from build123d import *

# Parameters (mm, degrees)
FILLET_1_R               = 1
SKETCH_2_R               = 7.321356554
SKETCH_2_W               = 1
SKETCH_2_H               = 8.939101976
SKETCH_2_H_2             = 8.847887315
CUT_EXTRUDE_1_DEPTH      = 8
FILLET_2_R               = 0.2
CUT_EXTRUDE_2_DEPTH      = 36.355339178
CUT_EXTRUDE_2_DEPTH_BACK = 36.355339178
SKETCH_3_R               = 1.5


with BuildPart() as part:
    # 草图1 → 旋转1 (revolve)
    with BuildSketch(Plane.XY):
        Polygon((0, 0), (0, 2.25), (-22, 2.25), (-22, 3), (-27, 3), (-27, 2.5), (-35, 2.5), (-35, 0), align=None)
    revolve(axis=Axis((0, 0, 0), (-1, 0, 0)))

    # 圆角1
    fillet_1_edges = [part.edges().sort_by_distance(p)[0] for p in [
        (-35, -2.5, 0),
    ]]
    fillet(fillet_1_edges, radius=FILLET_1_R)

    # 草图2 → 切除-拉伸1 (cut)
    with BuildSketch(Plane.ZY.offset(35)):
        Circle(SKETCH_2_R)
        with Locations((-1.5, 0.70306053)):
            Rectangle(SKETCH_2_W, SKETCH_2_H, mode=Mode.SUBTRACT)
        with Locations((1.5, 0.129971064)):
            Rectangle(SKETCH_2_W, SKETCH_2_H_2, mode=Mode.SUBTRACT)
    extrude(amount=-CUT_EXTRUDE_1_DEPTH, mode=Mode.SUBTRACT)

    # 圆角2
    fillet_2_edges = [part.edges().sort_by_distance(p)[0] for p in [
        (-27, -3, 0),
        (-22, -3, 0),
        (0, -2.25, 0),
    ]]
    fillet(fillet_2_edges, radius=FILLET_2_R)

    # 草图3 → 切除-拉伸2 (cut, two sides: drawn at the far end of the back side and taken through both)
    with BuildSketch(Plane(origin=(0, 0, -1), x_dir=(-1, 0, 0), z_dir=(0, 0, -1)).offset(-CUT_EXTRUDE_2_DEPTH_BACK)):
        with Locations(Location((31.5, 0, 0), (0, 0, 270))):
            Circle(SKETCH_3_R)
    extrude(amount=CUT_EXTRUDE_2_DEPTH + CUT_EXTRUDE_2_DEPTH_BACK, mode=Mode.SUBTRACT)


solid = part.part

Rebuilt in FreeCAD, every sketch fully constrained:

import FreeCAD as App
import Part
import Sketcher
Q = App.Units.Quantity


def edges_at(feature, points):
    """Names of the edges that pass closest to the given points."""
    edges = feature.Shape.Edges
    near = lambda p: min(range(len(edges)), key=lambda i: edges[i].distToShape(Part.Vertex(*p))[0])
    return sorted({f"Edge{near(p) + 1}" for p in points})

doc = App.newDocument("Part")
body = doc.addObject("PartDesign::Body", "Body")

# Sketch on XY plane
sketch1 = doc.addObject("Sketcher::SketchObject", "Sketch")
body.addObject(sketch1)
sketch1.AttachmentSupport = (doc.XY_Plane, [""])
sketch1.MapMode = "FlatFace"
sketch1.addGeometry([
    Part.LineSegment(App.Vector(0, 0, 0), App.Vector(0, 2.2, 0)),  # 0
    Part.LineSegment(App.Vector(0, 2.2, 0), App.Vector(-22, 2.2, 0)),  # 1
    Part.LineSegment(App.Vector(-22, 2.2, 0), App.Vector(-22, 3, 0)),  # 2
    Part.LineSegment(App.Vector(-22, 3, 0), App.Vector(-27, 3, 0)),  # 3
    Part.LineSegment(App.Vector(-27, 3, 0), App.Vector(-27, 2.5, 0)),  # 4
    Part.LineSegment(App.Vector(-27, 2.5, 0), App.Vector(-35, 2.5, 0)),  # 5
    Part.LineSegment(App.Vector(-35, 2.5, 0), App.Vector(-35, 0, 0)),  # 6
    Part.LineSegment(App.Vector(-35, 0, 0), App.Vector(0, 0, 0)),  # 7
], False)
sketch1.addConstraint([
    Sketcher.Constraint("Coincident", 0, 2, 1, 1),
    Sketcher.Constraint("Coincident", 1, 2, 2, 1),
    Sketcher.Constraint("Coincident", 2, 2, 3, 1),
    Sketcher.Constraint("Coincident", 3, 2, 4, 1),
    Sketcher.Constraint("Coincident", 4, 2, 5, 1),
    Sketcher.Constraint("Coincident", 5, 2, 6, 1),
    Sketcher.Constraint("Coincident", 6, 2, 7, 1),
    Sketcher.Constraint("Coincident", 7, 2, 0, 1),
    Sketcher.Constraint("Vertical", 0),
    Sketcher.Constraint("Horizontal", 1),
    Sketcher.Constraint("Vertical", 2),
    Sketcher.Constraint("Horizontal", 3),
    Sketcher.Constraint("Vertical", 4),
    Sketcher.Constraint("Horizontal", 5),
    Sketcher.Constraint("Vertical", 6),
    Sketcher.Constraint("Horizontal", 7),
    Sketcher.Constraint("Coincident", 7, 2, -1, 1),
    Sketcher.Constraint("DistanceX", 1, 2, 1, 1, Q("22 mm")),
    Sketcher.Constraint("DistanceX", 3, 2, 3, 1, Q("5 mm")),
    Sketcher.Constraint("DistanceX", 5, 2, 5, 1, Q("8 mm")),
    Sketcher.Constraint("DistanceY", 4, 2, 4, 1, Q("0.5 mm")),
    Sketcher.Constraint("DistanceY", 6, 2, 6, 1, Q("2.5 mm")),
    Sketcher.Constraint("DistanceY", 0, 1, 0, 2, Q("2.25 mm")),
])
revolution = doc.addObject("PartDesign::Revolution", "Revolution")
body.addObject(revolution)
revolution.Profile = sketch1
revolution.ReferenceAxis = (sketch1, ["H_Axis"])
revolution.Angle = 360
doc.recompute()

fillet = doc.addObject("PartDesign::Fillet", "Fillet")
body.addObject(fillet)
fillet.Base = (revolution, edges_at(revolution, [(-35, -2.5, 0)]))
fillet.Radius = 1

# Sketch on YZ plane
sketch2 = doc.addObject("Sketcher::SketchObject", "Sketch001")
body.addObject(sketch2)
sketch2.AttachmentSupport = (doc.YZ_Plane, [""])
sketch2.MapMode = "FlatFace"
sketch2.AttachmentOffset = App.Placement(App.Vector(0, 0, -35), App.Rotation())
sketch2.addGeometry([
    Part.Circle(App.Vector(0, 0, 0), App.Vector(0, 0, 1), 7.3),  # 0
    Part.LineSegment(App.Vector(-4.3, 2, 0), App.Vector(-4.3, 1, 0)),  # 1
    Part.LineSegment(App.Vector(-4.3, 1, 0), App.Vector(4.6, 1, 0)),  # 2
    Part.LineSegment(App.Vector(4.6, 1, 0), App.Vector(4.6, 2, 0)),  # 3
    Part.LineSegment(App.Vector(4.6, 2, 0), App.Vector(-4.3, 2, 0)),  # 4
    Part.LineSegment(App.Vector(-3.8, -1, 0), App.Vector(-3.8, -2, 0)),  # 5
    Part.LineSegment(App.Vector(-3.8, -2, 0), App.Vector(5.2, -2, 0)),  # 6
    Part.LineSegment(App.Vector(5.2, -2, 0), App.Vector(5.2, -1, 0)),  # 7
    Part.LineSegment(App.Vector(5.2, -1, 0), App.Vector(-3.8, -1, 0)),  # 8
], False)
sketch2.addConstraint([
    Sketcher.Constraint("Coincident", 1, 2, 2, 1),
    Sketcher.Constraint("Coincident", 2, 2, 3, 1),
    Sketcher.Constraint("Coincident", 3, 2, 4, 1),
    Sketcher.Constraint("Coincident", 4, 2, 1, 1),
    Sketcher.Constraint("Coincident", 5, 2, 6, 1),
    Sketcher.Constraint("Coincident", 6, 2, 7, 1),
    Sketcher.Constraint("Coincident", 7, 2, 8, 1),
    Sketcher.Constraint("Coincident", 8, 2, 5, 1),
    Sketcher.Constraint("Vertical", 1),
    Sketcher.Constraint("Horizontal", 2),
    Sketcher.Constraint("Vertical", 3),
    Sketcher.Constraint("Horizontal", 4),
    Sketcher.Constraint("Vertical", 5),
    Sketcher.Constraint("Horizontal", 6),
    Sketcher.Constraint("Vertical", 7),
    Sketcher.Constraint("Horizontal", 8),
    Sketcher.Constraint("Coincident", 0, 3, -1, 1),
    Sketcher.Constraint("Equal", 3, 5),
    Sketcher.Constraint("DistanceY", 1, 2, 1, 1, Q("1 mm")),
    Sketcher.Constraint("DistanceY", -1, 1, 1, 2, Q("1 mm")),
    Sketcher.Constraint("DistanceY", 5, 2, -1, 1, Q("2 mm")),
    Sketcher.Constraint("Diameter", 0, Q("14.642713 mm")),
    Sketcher.Constraint("DistanceX", 6, 1, 6, 2, Q("8.939102 mm")),
    Sketcher.Constraint("DistanceX", 2, 1, 2, 2, Q("8.847887 mm")),
    Sketcher.Constraint("DistanceX", 5, 2, -1, 1, Q("3.76649 mm")),
    Sketcher.Constraint("DistanceX", 1, 2, -1, 1, Q("4.293973 mm")),
])
pocket1 = doc.addObject("PartDesign::Pocket", "Pocket")
body.addObject(pocket1)
pocket1.Profile = sketch2
pocket1.Length = 8
pocket1.Reversed = True
doc.recompute()

fillet2 = doc.addObject("PartDesign::Fillet", "Fillet001")
body.addObject(fillet2)
fillet2.Base = (pocket1, edges_at(pocket1, [(-27, -3, 0), (-22, -3, 0), (0, -2.25, 0)]))
fillet2.Radius = 0.2

# Sketch on XY plane
sketch3 = doc.addObject("Sketcher::SketchObject", "Sketch002")
body.addObject(sketch3)
sketch3.AttachmentSupport = (doc.XY_Plane, [""])
sketch3.MapMode = "FlatFace"
sketch3.AttachmentOffset = App.Placement(App.Vector(0, 0, -1), App.Rotation())
sketch3.addGeometry(Part.Circle(App.Vector(-31.5, 0, 0), App.Vector(0, 0, 1), 1.5), False)
sketch3.addConstraint([
    Sketcher.Constraint("PointOnObject", 0, 3, -1),
    Sketcher.Constraint("Diameter", 0, Q("3 mm")),
    Sketcher.Constraint("DistanceX", 0, 3, -1, 1, Q("31.5 mm")),
])
pocket2 = doc.addObject("PartDesign::Pocket", "Pocket001")
body.addObject(pocket2)
pocket2.Profile = sketch3
pocket2.Type = "ThroughAll"
pocket2.Midplane = True

doc.recompute()
